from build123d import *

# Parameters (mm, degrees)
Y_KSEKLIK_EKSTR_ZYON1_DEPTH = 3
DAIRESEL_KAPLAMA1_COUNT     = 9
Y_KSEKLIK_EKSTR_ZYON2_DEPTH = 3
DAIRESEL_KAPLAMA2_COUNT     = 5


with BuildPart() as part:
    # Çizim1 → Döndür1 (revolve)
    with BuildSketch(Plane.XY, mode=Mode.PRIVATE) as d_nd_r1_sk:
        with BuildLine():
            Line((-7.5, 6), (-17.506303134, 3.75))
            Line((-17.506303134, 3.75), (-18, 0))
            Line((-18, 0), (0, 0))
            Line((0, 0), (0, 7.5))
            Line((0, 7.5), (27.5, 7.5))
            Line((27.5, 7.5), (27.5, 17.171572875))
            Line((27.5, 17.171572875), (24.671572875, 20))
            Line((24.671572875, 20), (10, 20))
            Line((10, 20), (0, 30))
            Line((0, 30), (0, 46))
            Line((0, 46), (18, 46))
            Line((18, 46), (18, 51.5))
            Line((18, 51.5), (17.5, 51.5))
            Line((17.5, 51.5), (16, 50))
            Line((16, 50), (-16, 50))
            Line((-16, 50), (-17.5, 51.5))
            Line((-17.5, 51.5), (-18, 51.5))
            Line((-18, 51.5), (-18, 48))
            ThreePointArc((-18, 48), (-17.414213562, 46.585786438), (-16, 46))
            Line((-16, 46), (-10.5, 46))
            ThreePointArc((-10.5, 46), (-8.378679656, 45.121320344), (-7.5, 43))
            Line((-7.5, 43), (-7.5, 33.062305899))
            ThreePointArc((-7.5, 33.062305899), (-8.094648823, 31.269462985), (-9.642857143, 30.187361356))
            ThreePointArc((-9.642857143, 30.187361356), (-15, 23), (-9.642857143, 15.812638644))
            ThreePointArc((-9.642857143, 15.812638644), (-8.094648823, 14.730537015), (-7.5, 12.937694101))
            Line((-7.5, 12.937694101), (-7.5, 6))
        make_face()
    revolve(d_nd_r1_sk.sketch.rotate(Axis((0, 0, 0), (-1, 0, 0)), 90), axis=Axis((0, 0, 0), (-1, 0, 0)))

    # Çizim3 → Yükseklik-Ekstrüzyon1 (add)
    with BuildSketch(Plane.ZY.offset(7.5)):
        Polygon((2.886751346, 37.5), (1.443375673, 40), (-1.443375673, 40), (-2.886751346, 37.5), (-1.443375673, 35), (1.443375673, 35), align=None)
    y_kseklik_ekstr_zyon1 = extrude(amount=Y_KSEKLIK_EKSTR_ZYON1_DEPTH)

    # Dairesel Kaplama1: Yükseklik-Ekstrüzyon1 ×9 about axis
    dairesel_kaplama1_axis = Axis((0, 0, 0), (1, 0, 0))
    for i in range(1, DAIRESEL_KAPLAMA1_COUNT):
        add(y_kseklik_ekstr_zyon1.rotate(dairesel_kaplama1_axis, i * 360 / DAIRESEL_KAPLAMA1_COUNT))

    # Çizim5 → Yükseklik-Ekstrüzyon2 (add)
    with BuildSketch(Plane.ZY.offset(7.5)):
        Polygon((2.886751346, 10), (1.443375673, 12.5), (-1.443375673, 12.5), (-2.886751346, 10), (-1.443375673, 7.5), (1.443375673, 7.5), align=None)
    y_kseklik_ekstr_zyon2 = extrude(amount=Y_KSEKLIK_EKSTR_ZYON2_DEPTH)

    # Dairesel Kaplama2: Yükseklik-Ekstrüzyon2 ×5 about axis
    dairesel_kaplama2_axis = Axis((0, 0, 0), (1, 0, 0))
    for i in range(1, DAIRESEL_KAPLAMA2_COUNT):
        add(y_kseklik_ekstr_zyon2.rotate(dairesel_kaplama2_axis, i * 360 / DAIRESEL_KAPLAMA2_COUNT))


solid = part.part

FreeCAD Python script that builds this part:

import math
import FreeCAD as App
import Part
import Sketcher
from FreeCAD import Vector
Q = App.Units.Quantity


def add_polygon(sketch, points):
    """Adds a closed chain of lines whose ends are joined by coincident constraints."""
    first, n = sketch.GeometryCount, len(points)
    for a, b in zip(points, points[1:] + points[:1]):
        sketch.addGeometry(Part.LineSegment(App.Vector(*a, 0), App.Vector(*b, 0)), False)
    for i in range(n):
        sketch.addConstraint(Sketcher.Constraint("Coincident", first + i, 2, first + (i + 1) % n, 1))

doc = App.newDocument("Part")
body = doc.addObject("PartDesign::Body", "Body")

# Sketch on XY plane
sketch1 = body.newObject("Sketcher::SketchObject", "Sketch")
sketch1.AttachmentSupport = (doc.getObject("XY_Plane"), [""])
sketch1.MapMode = "FlatFace"
sketch1.addGeometry(Part.LineSegment(Vector(-7.5, 6, 0), Vector(-17.5, 3.8, 0)), False)
sketch1.addGeometry(Part.LineSegment(Vector(-17.5, 3.8, 0), Vector(-18, 0, 0)), False)
sketch1.addGeometry(Part.LineSegment(Vector(-18, 0, 0), Vector(0, 0, 0)), False)
sketch1.addGeometry(Part.LineSegment(Vector(0, 0, 0), Vector(0, 7.5, 0)), False)
sketch1.addGeometry(Part.LineSegment(Vector(0, 7.5, 0), Vector(27.5, 7.5, 0)), False)
sketch1.addGeometry(Part.LineSegment(Vector(27.5, 7.5, 0), Vector(27.5, 17.2, 0)), False)
sketch1.addGeometry(Part.LineSegment(Vector(27.5, 17.2, 0), Vector(24.7, 20, 0)), False)
sketch1.addGeometry(Part.LineSegment(Vector(24.7, 20, 0), Vector(10, 20, 0)), False)
sketch1.addGeometry(Part.LineSegment(Vector(10, 20, 0), Vector(0, 30, 0)), False)
sketch1.addGeometry(Part.LineSegment(Vector(0, 30, 0), Vector(0, 46, 0)), False)
sketch1.addGeometry(Part.LineSegment(Vector(0, 46, 0), Vector(18, 46, 0)), False)
sketch1.addGeometry(Part.LineSegment(Vector(18, 46, 0), Vector(18, 51.5, 0)), False)
sketch1.addGeometry(Part.LineSegment(Vector(18, 51.5, 0), Vector(17.5, 51.5, 0)), False)
sketch1.addGeometry(Part.LineSegment(Vector(17.5, 51.5, 0), Vector(16, 50, 0)), False)
sketch1.addGeometry(Part.LineSegment(Vector(16, 50, 0), Vector(-16, 50, 0)), False)
sketch1.addGeometry(Part.LineSegment(Vector(-16, 50, 0), Vector(-17.5, 51.5, 0)), False)
sketch1.addGeometry(Part.LineSegment(Vector(-17.5, 51.5, 0), Vector(-18, 51.5, 0)), False)
sketch1.addGeometry(Part.LineSegment(Vector(-18, 51.5, 0), Vector(-18, 48, 0)), False)
sketch1.addGeometry(Part.ArcOfCircle(Part.Circle(Vector(-16, 48, 0), Vector(0, 0, 1), 2), math.radians(-180), math.radians(-90)), False)
sketch1.addGeometry(Part.LineSegment(Vector(-16, 46, 0), Vector(-10.5, 46, 0)), False)
sketch1.addGeometry(Part.ArcOfCircle(Part.Circle(Vector(-10.5, 43, 0), Vector(0, 0, 1), 3), math.radians(0), math.radians(90)), False)
sketch1.addGeometry(Part.LineSegment(Vector(-7.5, 43, 0), Vector(-7.5, 33.1, 0)), False)
sketch1.addGeometry(Part.ArcOfCircle(Part.Circle(Vector(-10.5, 33.1, 0), Vector(0, 0, 1), 3), math.radians(-73), math.radians(0)), False)
sketch1.addGeometry(Part.ArcOfCircle(Part.Circle(Vector(-7.5, 23, 0), Vector(0, 0, 1), 7.5), math.radians(107), math.radians(253)), False)
sketch1.addGeometry(Part.ArcOfCircle(Part.Circle(Vector(-10.5, 12.9, 0), Vector(0, 0, 1), 3), math.radians(0), math.radians(73)), False)
sketch1.addGeometry(Part.LineSegment(Vector(-7.5, 12.9, 0), Vector(-7.5, 6, 0)), False)
sketch1.addConstraint(Sketcher.Constraint("Coincident", 0, 2, 1, 1))
sketch1.addConstraint(Sketcher.Constraint("Coincident", 1, 2, 2, 1))
sketch1.addConstraint(Sketcher.Constraint("Coincident", 2, 2, 3, 1))
sketch1.addConstraint(Sketcher.Constraint("Coincident", 3, 2, 4, 1))
sketch1.addConstraint(Sketcher.Constraint("Coincident", 4, 2, 5, 1))
sketch1.addConstraint(Sketcher.Constraint("Coincident", 5, 2, 6, 1))
sketch1.addConstraint(Sketcher.Constraint("Coincident", 6, 2, 7, 1))
sketch1.addConstraint(Sketcher.Constraint("Coincident", 7, 2, 8, 1))
sketch1.addConstraint(Sketcher.Constraint("Coincident", 8, 2, 9, 1))
sketch1.addConstraint(Sketcher.Constraint("Coincident", 9, 2, 10, 1))
sketch1.addConstraint(Sketcher.Constraint("Coincident", 10, 2, 11, 1))
sketch1.addConstraint(Sketcher.Constraint("Coincident", 11, 2, 12, 1))
sketch1.addConstraint(Sketcher.Constraint("Coincident", 12, 2, 13, 1))
sketch1.addConstraint(Sketcher.Constraint("Coincident", 13, 2, 14, 1))
sketch1.addConstraint(Sketcher.Constraint("Coincident", 14, 2, 15, 1))
sketch1.addConstraint(Sketcher.Constraint("Coincident", 15, 2, 16, 1))
sketch1.addConstraint(Sketcher.Constraint("Coincident", 16, 2, 17, 1))
sketch1.addConstraint(Sketcher.Constraint("Tangent", 17, 2, 18, 1))
sketch1.addConstraint(Sketcher.Constraint("Tangent", 18, 2, 19, 1))
sketch1.addConstraint(Sketcher.Constraint("Tangent", 19, 2, 20, 2))
sketch1.addConstraint(Sketcher.Constraint("Tangent", 20, 1, 21, 1))
sketch1.addConstraint(Sketcher.Constraint("Tangent", 21, 2, 22, 2))
sketch1.addConstraint(Sketcher.Constraint("Tangent", 22, 1, 23, 1))
sketch1.addConstraint(Sketcher.Constraint("Tangent", 23, 2, 24, 2))
sketch1.addConstraint(Sketcher.Constraint("Tangent", 24, 1, 25, 1))
sketch1.addConstraint(Sketcher.Constraint("Coincident", 25, 2, 0, 1))
sketch1.addConstraint(Sketcher.Constraint("Horizontal", 2))
sketch1.addConstraint(Sketcher.Constraint("Vertical", 3))
sketch1.addConstraint(Sketcher.Constraint("Horizontal", 4))
sketch1.addConstraint(Sketcher.Constraint("Vertical", 5))
sketch1.addConstraint(Sketcher.Constraint("Horizontal", 7))
sketch1.addConstraint(Sketcher.Constraint("Vertical", 9))
sketch1.addConstraint(Sketcher.Constraint("Horizontal", 10))
sketch1.addConstraint(Sketcher.Constraint("Vertical", 11))
sketch1.addConstraint(Sketcher.Constraint("Horizontal", 12))
sketch1.addConstraint(Sketcher.Constraint("Horizontal", 14))
sketch1.addConstraint(Sketcher.Constraint("Horizontal", 16))
sketch1.addConstraint(Sketcher.Constraint("Vertical", 17))
sketch1.addConstraint(Sketcher.Constraint("Horizontal", 19))
sketch1.addConstraint(Sketcher.Constraint("Vertical", 21))
sketch1.addConstraint(Sketcher.Constraint("Vertical", 25))
sketch1.addConstraint(Sketcher.Constraint("Coincident", 2, 2, -1, 1))
sketch1.addConstraint(Sketcher.Constraint("Equal", 20, 22))
sketch1.addConstraint(Sketcher.Constraint("Equal", 22, 24))
sketch1.addConstraint(Sketcher.Constraint("Symmetric", 12, 2, 15, 2, -2))
sketch1.addConstraint(Sketcher.Constraint("PointOnObject", 8, 2, -2))
sketch1.addConstraint(Sketcher.Constraint("Parallel", 6, 8))
sketch1.addConstraint(Sketcher.Constraint("Perpendicular", 8, 13))
sketch1.addConstraint(Sketcher.Constraint("Perpendicular", 13, 15))
sketch1.addConstraint(Sketcher.Constraint("Horizontal", 10, 2, 18, 2))
sketch1.addConstraint(Sketcher.Constraint("Vertical", 22, 3, 24, 3))
sketch1.addConstraint(Sketcher.Constraint("Vertical", 18, 3, 14, 2))
sketch1.addConstraint(Sketcher.Constraint("Vertical", 1, 2, 16, 2))
sketch1.addConstraint(Sketcher.Constraint("Vertical", 23, 3, 20, 1))
sketch1.addConstraint(Sketcher.Constraint("Equal", 2, 10))
sketch1.addConstraint(Sketcher.Constraint("Equal", 19, 11))
sketch1.addConstraint(Sketcher.Constraint("Equal", 13, 15))
sketch1.addConstraint(Sketcher.Constraint("Radius", 18, Q("2 mm")))
sketch1.addConstraint(Sketcher.Constraint("Radius", 20, Q("3 mm")))
sketch1.addConstraint(Sketcher.Constraint("Radius", 23, Q("7.5 mm")))
sketch1.addConstraint(Sketcher.Constraint("DistanceX", 2, 1, 2, 2, Q("18 mm")))
sketch1.addConstraint(Sketcher.Constraint("DistanceY", 9, 1, 9, 2, Q("16 mm")))
sketch1.addConstraint(Sketcher.Constraint("Distance", 6, Q("4 mm")))
sketch1.addConstraint(Sketcher.Constraint("DistanceX", 4, 1, 4, 2, Q("27.5 mm")))
sketch1.addConstraint(Sketcher.Constraint("DistanceX", 12, 2, 12, 1, Q("0.5 mm")))
sketch1.addConstraint(Sketcher.Constraint("DistanceX", 19, 1, 19, 2, Q("5.5 mm")))
sketch1.addConstraint(Sketcher.Constraint("DistanceY", 3, 1, 3, 2, Q("7.5 mm")))
sketch1.addConstraint(Sketcher.Constraint("DistanceY", -1, 1, 18, 3, Q("48 mm")))
sketch1.addConstraint(Sketcher.Constraint("DistanceY", -1, 1, 23, 3, Q("23 mm")))
sketch1.addConstraint(Sketcher.Constraint("DistanceY", -1, 1, 6, 2, Q("20 mm")))
sketch1.addConstraint(Sketcher.Constraint("DistanceY", -1, 1, 25, 2, Q("6 mm")))
sketch1.addConstraint(Sketcher.Constraint("Angle", 1, Q("-97.5 deg")))
sketch1.addConstraint(Sketcher.Constraint("DistanceY", -1, 1, 0, 2, Q("3.75 mm")))
revolution = body.newObject("PartDesign::Revolution", "Revolution")
revolution.Profile = sketch1
revolution.ReferenceAxis = (sketch1, ["H_Axis"])
revolution.Angle = 360

# Sketch on YZ plane
sketch2 = body.newObject("Sketcher::SketchObject", "Sketch001")
sketch2.AttachmentSupport = (doc.getObject("YZ_Plane"), [""])
sketch2.MapMode = "FlatFace"
sketch2.AttachmentOffset = App.Placement(Vector(0, 0, -7.5), App.Rotation())
add_polygon(sketch2, [(37.5, 2.9), (40, 1.4), (40, -1.4), (37.5, -2.9), (35, -1.4), (35, 1.4)])  # lines 0-5
sketch2.addConstraint(Sketcher.Constraint("Vertical", 1))
sketch2.addConstraint(Sketcher.Constraint("Vertical", 4))
sketch2.addConstraint(Sketcher.Constraint("Symmetric", 2, 2, 5, 2, -1))
sketch2.addConstraint(Sketcher.Constraint("Parallel", 0, 3))
sketch2.addConstraint(Sketcher.Constraint("Parallel", 2, 5))
sketch2.addConstraint(Sketcher.Constraint("Horizontal", 1, 2, 3, 2))
sketch2.addConstraint(Sketcher.Constraint("Horizontal", 0, 2, 4, 2))
sketch2.addConstraint(Sketcher.Constraint("Angle", 0, Q("-30 deg")))
sketch2.addConstraint(Sketcher.Constraint("DistanceX", -1, 1, 0, 2, Q("40 mm")))
sketch2.addConstraint(Sketcher.Constraint("DistanceX", -1, 1, 3, 2, Q("35 mm")))
sketch2.addConstraint(Sketcher.Constraint("DistanceY", 1, 2, 1, 1, Q("2.886751 mm")))
pad1 = body.newObject("PartDesign::Pad", "Pad")
pad1.Profile = sketch2
pad1.Length = 3
pad1.Reversed = True
doc.recompute()

polarpattern = body.newObject("PartDesign::PolarPattern", "PolarPattern")
polarpattern.Originals = [pad1]
polarpattern.Axis = (doc.getObject("X_Axis"), [""])
polarpattern.Angle = 360
polarpattern.Occurrences = 9
body.Tip = polarpattern

# Sketch on YZ plane
sketch3 = body.newObject("Sketcher::SketchObject", "Sketch002")
sketch3.AttachmentSupport = (doc.getObject("YZ_Plane"), [""])
sketch3.MapMode = "FlatFace"
sketch3.AttachmentOffset = App.Placement(Vector(0, 0, -7.5), App.Rotation())
add_polygon(sketch3, [(10, 2.9), (12.5, 1.4), (12.5, -1.4), (10, -2.9), (7.5, -1.4), (7.5, 1.4)])  # lines 0-5
sketch3.addConstraint(Sketcher.Constraint("Vertical", 1))
sketch3.addConstraint(Sketcher.Constraint("Vertical", 4))
sketch3.addConstraint(Sketcher.Constraint("Symmetric", 2, 2, 5, 2, -1))
sketch3.addConstraint(Sketcher.Constraint("Parallel", 0, 3))
sketch3.addConstraint(Sketcher.Constraint("Parallel", 2, 5))
sketch3.addConstraint(Sketcher.Constraint("Horizontal", 1, 2, 3, 2))
sketch3.addConstraint(Sketcher.Constraint("Horizontal", 0, 2, 4, 2))
sketch3.addConstraint(Sketcher.Constraint("Angle", 0, Q("-30 deg")))
sketch3.addConstraint(Sketcher.Constraint("DistanceX", -1, 1, 2, 2, Q("10 mm")))
sketch3.addConstraint(Sketcher.Constraint("DistanceX", 3, 2, 1, 2, Q("5 mm")))
sketch3.addConstraint(Sketcher.Constraint("DistanceY", 1, 2, 1, 1, Q("2.886751 mm")))
pad2 = body.newObject("PartDesign::Pad", "Pad001")
pad2.Profile = sketch3
pad2.Length = 3
pad2.Reversed = True
doc.recompute()

polarpattern2 = body.newObject("PartDesign::PolarPattern", "PolarPattern001")
polarpattern2.Originals = [pad2]
polarpattern2.Axis = (doc.getObject("X_Axis"), [""])
polarpattern2.Angle = 360
polarpattern2.Occurrences = 5
body.Tip = polarpattern2

doc.recompute()
